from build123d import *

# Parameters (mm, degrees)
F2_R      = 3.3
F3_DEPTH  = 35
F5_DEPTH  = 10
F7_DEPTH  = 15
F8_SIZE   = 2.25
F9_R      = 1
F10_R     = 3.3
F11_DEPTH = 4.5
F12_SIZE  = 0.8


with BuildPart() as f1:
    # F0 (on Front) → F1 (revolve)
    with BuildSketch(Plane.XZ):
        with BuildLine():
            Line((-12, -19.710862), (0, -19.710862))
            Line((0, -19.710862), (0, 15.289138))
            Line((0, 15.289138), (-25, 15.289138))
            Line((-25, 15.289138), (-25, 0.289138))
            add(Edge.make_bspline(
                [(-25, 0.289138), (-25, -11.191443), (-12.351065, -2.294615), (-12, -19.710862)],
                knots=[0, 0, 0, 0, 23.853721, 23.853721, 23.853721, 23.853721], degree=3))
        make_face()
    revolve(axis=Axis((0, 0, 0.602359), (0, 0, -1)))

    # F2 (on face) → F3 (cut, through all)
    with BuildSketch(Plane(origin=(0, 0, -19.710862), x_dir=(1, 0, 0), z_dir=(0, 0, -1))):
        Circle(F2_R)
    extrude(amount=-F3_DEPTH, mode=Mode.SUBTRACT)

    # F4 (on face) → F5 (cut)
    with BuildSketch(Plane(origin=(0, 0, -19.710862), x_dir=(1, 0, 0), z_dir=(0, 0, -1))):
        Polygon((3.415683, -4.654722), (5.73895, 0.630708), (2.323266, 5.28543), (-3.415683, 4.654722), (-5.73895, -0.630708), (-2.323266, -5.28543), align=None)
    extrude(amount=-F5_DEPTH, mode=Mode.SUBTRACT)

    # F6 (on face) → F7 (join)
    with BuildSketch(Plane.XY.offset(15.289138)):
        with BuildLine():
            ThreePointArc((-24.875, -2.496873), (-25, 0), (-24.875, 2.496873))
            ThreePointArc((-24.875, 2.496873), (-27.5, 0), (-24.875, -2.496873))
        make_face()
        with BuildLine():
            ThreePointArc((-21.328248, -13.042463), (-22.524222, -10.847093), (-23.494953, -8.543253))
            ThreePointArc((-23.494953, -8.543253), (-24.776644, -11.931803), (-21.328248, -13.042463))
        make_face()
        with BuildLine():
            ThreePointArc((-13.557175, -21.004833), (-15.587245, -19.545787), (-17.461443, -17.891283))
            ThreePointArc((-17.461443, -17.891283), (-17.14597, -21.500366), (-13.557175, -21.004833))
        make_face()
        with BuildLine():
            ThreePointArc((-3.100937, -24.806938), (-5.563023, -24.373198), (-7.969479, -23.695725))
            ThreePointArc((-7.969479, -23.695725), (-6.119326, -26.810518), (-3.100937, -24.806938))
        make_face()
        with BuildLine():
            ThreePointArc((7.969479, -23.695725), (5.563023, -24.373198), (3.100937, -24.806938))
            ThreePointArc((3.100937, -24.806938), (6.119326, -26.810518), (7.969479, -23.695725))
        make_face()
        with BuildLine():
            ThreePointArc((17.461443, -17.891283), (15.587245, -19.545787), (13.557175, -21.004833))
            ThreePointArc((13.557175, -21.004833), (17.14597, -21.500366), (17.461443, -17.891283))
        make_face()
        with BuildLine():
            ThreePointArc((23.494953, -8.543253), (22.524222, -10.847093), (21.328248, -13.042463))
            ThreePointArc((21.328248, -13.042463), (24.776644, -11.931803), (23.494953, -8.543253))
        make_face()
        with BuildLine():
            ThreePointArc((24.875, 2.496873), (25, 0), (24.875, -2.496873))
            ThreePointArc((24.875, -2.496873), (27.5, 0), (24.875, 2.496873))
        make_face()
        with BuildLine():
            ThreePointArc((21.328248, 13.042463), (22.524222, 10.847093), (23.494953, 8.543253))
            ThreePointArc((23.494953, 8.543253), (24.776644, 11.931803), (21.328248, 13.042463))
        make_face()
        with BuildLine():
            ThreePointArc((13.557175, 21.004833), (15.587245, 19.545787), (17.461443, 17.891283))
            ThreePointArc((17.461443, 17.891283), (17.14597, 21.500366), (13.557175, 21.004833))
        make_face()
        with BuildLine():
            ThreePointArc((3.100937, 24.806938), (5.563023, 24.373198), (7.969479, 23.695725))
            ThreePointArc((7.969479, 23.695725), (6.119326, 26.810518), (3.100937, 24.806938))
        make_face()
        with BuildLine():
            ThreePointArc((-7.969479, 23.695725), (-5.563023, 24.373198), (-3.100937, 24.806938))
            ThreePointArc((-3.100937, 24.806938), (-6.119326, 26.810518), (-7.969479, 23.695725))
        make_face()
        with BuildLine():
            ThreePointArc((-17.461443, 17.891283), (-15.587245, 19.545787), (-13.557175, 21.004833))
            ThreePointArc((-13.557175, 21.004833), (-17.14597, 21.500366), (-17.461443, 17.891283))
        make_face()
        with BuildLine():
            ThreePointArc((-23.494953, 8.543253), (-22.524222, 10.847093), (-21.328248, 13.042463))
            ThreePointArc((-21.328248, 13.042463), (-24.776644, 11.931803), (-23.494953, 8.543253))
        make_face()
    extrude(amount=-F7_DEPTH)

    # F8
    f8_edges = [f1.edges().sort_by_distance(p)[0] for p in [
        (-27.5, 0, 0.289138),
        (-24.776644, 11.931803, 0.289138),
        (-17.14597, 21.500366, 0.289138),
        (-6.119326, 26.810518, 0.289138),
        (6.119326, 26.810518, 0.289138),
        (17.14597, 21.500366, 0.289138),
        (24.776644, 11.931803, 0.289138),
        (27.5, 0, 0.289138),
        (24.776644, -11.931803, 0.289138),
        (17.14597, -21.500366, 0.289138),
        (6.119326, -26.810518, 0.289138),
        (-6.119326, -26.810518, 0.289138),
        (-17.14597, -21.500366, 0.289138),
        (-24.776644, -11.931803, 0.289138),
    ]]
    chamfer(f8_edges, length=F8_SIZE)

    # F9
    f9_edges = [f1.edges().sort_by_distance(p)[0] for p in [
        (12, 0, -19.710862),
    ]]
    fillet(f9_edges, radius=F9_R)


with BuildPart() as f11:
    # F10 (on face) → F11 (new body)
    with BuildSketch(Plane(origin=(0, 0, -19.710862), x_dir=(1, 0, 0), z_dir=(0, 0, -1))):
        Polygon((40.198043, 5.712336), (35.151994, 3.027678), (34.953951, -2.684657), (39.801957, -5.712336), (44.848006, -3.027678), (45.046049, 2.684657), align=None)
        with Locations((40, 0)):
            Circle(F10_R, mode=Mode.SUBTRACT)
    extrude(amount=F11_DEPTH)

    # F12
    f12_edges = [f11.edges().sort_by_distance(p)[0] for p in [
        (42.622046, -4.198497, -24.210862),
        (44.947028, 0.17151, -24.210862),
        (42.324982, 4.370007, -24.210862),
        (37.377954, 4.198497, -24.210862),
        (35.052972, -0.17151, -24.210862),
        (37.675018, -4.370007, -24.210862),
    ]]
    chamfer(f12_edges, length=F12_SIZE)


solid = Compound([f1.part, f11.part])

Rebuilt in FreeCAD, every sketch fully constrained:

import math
import FreeCAD as App
import Part
import Sketcher
from FreeCAD import Vector


def edges_at(feature, points):
    """Names of the edges that pass closest to the given points."""
    edges = feature.Shape.Edges
    near = lambda p: min(range(len(edges)), key=lambda i: edges[i].distToShape(Part.Vertex(*p))[0])
    return sorted({f"Edge{near(p) + 1}" for p in points})


def add_polygon(sketch, points):
    """Adds a closed chain of lines whose ends are joined by coincident constraints."""
    first, n = sketch.GeometryCount, len(points)
    for a, b in zip(points, points[1:] + points[:1]):
        sketch.addGeometry(Part.LineSegment(App.Vector(*a, 0), App.Vector(*b, 0)), False)
    for i in range(n):
        sketch.addConstraint(Sketcher.Constraint("Coincident", first + i, 2, first + (i + 1) % n, 1))

doc = App.newDocument("Part")
params = doc.addObject("Spreadsheet::Sheet", "Params")
for row, (alias, value) in enumerate([
    ("sketch1_height", "35 mm"),
    ("revolution_angle", "360 deg"),
    ("sketch2_diameter", "6.6 mm"),
    ("pocket2_length", "10 mm"),
    ("sketch4_radius", "24.999999 mm"),
    ("sketch4_radius2", "2.5 mm"),
    ("pad1_length", "15 mm"),
    ("chamfer_size", "2.25 mm"),
    ("fillet_radius", "1 mm"),
    ("sketch5_diameter", "6.6 mm"),
    ("pad2_length", "4.5 mm"),
    ("chamfer2_size", "0.8 mm"),
], start=1):
    params.set(f"A{row}", alias)
    params.set(f"B{row}", "=" + value)
    params.setAlias(f"B{row}", alias)

body = doc.addObject("PartDesign::Body", "Body")

# Sketch on XZ plane
sketch1 = doc.addObject("Sketcher::SketchObject", "Sketch")
body.addObject(sketch1)
sketch1.AttachmentSupport = (doc.XZ_Plane, [""])
sketch1.MapMode = "FlatFace"
sketch1.addGeometry([
    Part.LineSegment(Vector(-12, -19.710862, 0), Vector(0, -19.710862, 0)),  # 0
    Part.LineSegment(Vector(0, -19.710862, 0), Vector(0, 15.289138, 0)),  # 1
    Part.LineSegment(Vector(0, 15.289138, 0), Vector(-25, 15.289138, 0)),  # 2
    Part.LineSegment(Vector(-25, 15.289138, 0), Vector(-25, 0.289138, 0)),  # 3
    Part.BSplineCurve([Vector(-25, 0.289138, 0), Vector(-25, -11.191443, 0), Vector(-12.351065, -2.294615, 0), Vector(-12, -19.710862, 0)], [4, 4], [0, 23.853721], False, 3, [1, 1, 1, 1], False),  # 4
], False)
sketch1.addConstraint([
    Sketcher.Constraint("Block", 4),
    Sketcher.Constraint("Coincident", 0, 2, 1, 1),
    Sketcher.Constraint("Coincident", 1, 2, 2, 1),
    Sketcher.Constraint("Coincident", 2, 2, 3, 1),
    Sketcher.Constraint("Coincident", 3, 2, 4, 1),
    Sketcher.Constraint("Coincident", 4, 2, 0, 1),
    Sketcher.Constraint("Horizontal", 0),
    Sketcher.Constraint("Vertical", 1),
    Sketcher.Constraint("Horizontal", 2),
    Sketcher.Constraint("Vertical", 3),
    Sketcher.Constraint("PointOnObject", 0, 2, -2),
    Sketcher.Constraint("DistanceY", 1, 1, 1, 2, 35.0),
])
sketch1.setExpression("Constraints[11]", "Params.sketch1_height")
revolution = doc.addObject("PartDesign::Revolution", "Revolution")
body.addObject(revolution)
revolution.Profile = sketch1
revolution.ReferenceAxis = (sketch1, ["V_Axis"])
revolution.setExpression("Angle", "Params.revolution_angle")

# Sketch on XY plane
sketch2 = doc.addObject("Sketcher::SketchObject", "Sketch001")
body.addObject(sketch2)
sketch2.AttachmentSupport = (doc.XY_Plane, [""])
sketch2.MapMode = "FlatFace"
sketch2.AttachmentOffset = App.Placement(Vector(0, 0, -19.710862), App.Rotation())
sketch2.addGeometry(Part.Circle(Vector(0, 0, 0), Vector(0, 0, 1), 3.3), False)
sketch2.addConstraint([
    Sketcher.Constraint("Coincident", 0, 3, -1, 1),
    Sketcher.Constraint("Diameter", 0, 6.6),
])
sketch2.setExpression("Constraints[1]", "Params.sketch2_diameter")
pocket1 = doc.addObject("PartDesign::Pocket", "Pocket")
body.addObject(pocket1)
pocket1.Profile = sketch2
pocket1.Type = "ThroughAll"
pocket1.Reversed = True

# Sketch on XY plane
sketch3 = doc.addObject("Sketcher::SketchObject", "Sketch002")
body.addObject(sketch3)
sketch3.AttachmentSupport = (doc.XY_Plane, [""])
sketch3.MapMode = "FlatFace"
sketch3.AttachmentOffset = App.Placement(Vector(0, 0, -19.710862), App.Rotation())
add_polygon(sketch3, [(3, 5), (6, -1), (2, -5), (-3, -5), (-6, 1), (-2, 5)])  # lines 0-5
sketch3.addConstraint([
    Sketcher.Constraint("Symmetric", 0, 2, 3, 2, -1, 1),
    Sketcher.Constraint("Symmetric", 1, 2, 4, 2, -1, 1),
    Sketcher.Constraint("Symmetric", 2, 2, 5, 2, -1, 1),
    Sketcher.Constraint("Equal", 0, 1),
    Sketcher.Constraint("Equal", 1, 2),
    Sketcher.Constraint("DistanceX", 3, 2, 0, 2, 11.4779),
    Sketcher.Constraint("DistanceY", 0, 2, -1, 1, 0.630708),
    Sketcher.Constraint("DistanceY", 1, 2, -1, 1, 5.28543),
    Sketcher.Constraint("DistanceY", 2, 2, -1, 1, 4.654722),
])
pocket2 = doc.addObject("PartDesign::Pocket", "Pocket001")
body.addObject(pocket2)
pocket2.Profile = sketch3
pocket2.setExpression("Length", "Params.pocket2_length")
pocket2.Reversed = True

# Sketch on XY plane
sketch4 = doc.addObject("Sketcher::SketchObject", "Sketch003")
body.addObject(sketch4)
sketch4.AttachmentSupport = (doc.XY_Plane, [""])
sketch4.MapMode = "FlatFace"
sketch4.AttachmentOffset = App.Placement(Vector(0, 0, 15.289138), App.Rotation())
sketch4.addGeometry([
    Part.ArcOfCircle(Part.Circle(Vector(-0.000001, 0, 0), Vector(0, 0, 1), 24.999999), math.radians(174.268032), math.radians(185.731968)),  # 0
    Part.ArcOfCircle(Part.Circle(Vector(-25, 0, 0), Vector(0, 0, 1), 2.5), math.radians(87.134015), math.radians(272.865985)),  # 1
    Part.ArcOfCircle(Part.Circle(Vector(-0.000025, -0.000014, 0), Vector(0, 0, 1), 24.999971), math.radians(-160.017693), math.radians(-148.553743)),  # 2
    Part.ArcOfCircle(Part.Circle(Vector(-22.524222, -10.847094, 0), Vector(0, 0, 1), 2.5), math.radians(112.848293), math.radians(298.580271)),  # 3
    Part.ArcOfCircle(Part.Circle(Vector(0.000013, 0.000016, 0), Vector(0, 0, 1), 25.00002), math.radians(-134.303394), math.radians(-122.839466)),  # 4
    Part.ArcOfCircle(Part.Circle(Vector(-15.587245, -19.545787, 0), Vector(0, 0, 1), 2.5), math.radians(138.562579), math.radians(324.294561)),  # 5
    Part.ArcOfCircle(Part.Circle(Vector(-0.000021, -0.000096, 0), Vector(0, 0, 1), 24.999902), math.radians(-108.589134), math.radians(-97.125153)),  # 6
    Part.ArcOfCircle(Part.Circle(Vector(-5.563023, -24.373198, 0), Vector(0, 0, 1), 2.5), math.radians(164.276849), math.radians(350.008864)),  # 7
    Part.ArcOfCircle(Part.Circle(Vector(0.000021, -0.000096, 0), Vector(0, 0, 1), 24.999902), math.radians(-82.874847), math.radians(-71.410866)),  # 8
    Part.ArcOfCircle(Part.Circle(Vector(5.563023, -24.373198, 0), Vector(0, 0, 1), 2.5), math.radians(-170.008864), math.radians(15.723151)),  # 9
    Part.ArcOfCircle(Part.Circle(Vector(-0.000013, 0.000016, 0), Vector(0, 0, 1), 25.00002), math.radians(-57.160534), math.radians(-45.696606)),  # 10
    Part.ArcOfCircle(Part.Circle(Vector(15.587245, -19.545787, 0), Vector(0, 0, 1), 2.5), math.radians(-144.294561), math.radians(41.437421)),  # 11
    Part.ArcOfCircle(Part.Circle(Vector(0.000025, -0.000014, 0), Vector(0, 0, 1), 24.999971), math.radians(-31.446257), math.radians(-19.982307)),  # 12
    Part.ArcOfCircle(Part.Circle(Vector(22.524222, -10.847094, 0), Vector(0, 0, 1), 2.5), math.radians(-118.580271), math.radians(67.151707)),  # 13
    Part.ArcOfCircle(Part.Circle(Vector(0.000001, 0, 0), Vector(0, 0, 1), 24.999999), math.radians(-5.731968), math.radians(5.731968)),  # 14
    Part.ArcOfCircle(Part.Circle(Vector(25, 0, 0), Vector(0, 0, 1), 2.5), math.radians(-92.865985), math.radians(92.865985)),  # 15
    Part.ArcOfCircle(Part.Circle(Vector(0.000025, 0.000014, 0), Vector(0, 0, 1), 24.999971), math.radians(19.982307), math.radians(31.446257)),  # 16
    Part.ArcOfCircle(Part.Circle(Vector(22.524222, 10.847094, 0), Vector(0, 0, 1), 2.5), math.radians(-67.151707), math.radians(118.580271)),  # 17
    Part.ArcOfCircle(Part.Circle(Vector(-0.000013, -0.000016, 0), Vector(0, 0, 1), 25.00002), math.radians(45.696606), math.radians(57.160534)),  # 18
    Part.ArcOfCircle(Part.Circle(Vector(15.587245, 19.545787, 0), Vector(0, 0, 1), 2.5), math.radians(-41.437421), math.radians(144.294561)),  # 19
    Part.ArcOfCircle(Part.Circle(Vector(0.000021, 0.000096, 0), Vector(0, 0, 1), 24.999902), math.radians(71.410866), math.radians(82.874847)),  # 20
    Part.ArcOfCircle(Part.Circle(Vector(5.563023, 24.373198, 0), Vector(0, 0, 1), 2.5), math.radians(-15.723151), math.radians(170.008864)),  # 21
    Part.ArcOfCircle(Part.Circle(Vector(-0.000021, 0.000096, 0), Vector(0, 0, 1), 24.999902), math.radians(97.125153), math.radians(108.589134)),  # 22
    Part.ArcOfCircle(Part.Circle(Vector(-5.563023, 24.373198, 0), Vector(0, 0, 1), 2.5), math.radians(9.991136), math.radians(195.723151)),  # 23
    Part.ArcOfCircle(Part.Circle(Vector(0.000013, -0.000016, 0), Vector(0, 0, 1), 25.00002), math.radians(122.839466), math.radians(134.303394)),  # 24
    Part.ArcOfCircle(Part.Circle(Vector(-15.587245, 19.545787, 0), Vector(0, 0, 1), 2.5), math.radians(35.705439), math.radians(221.437421)),  # 25
    Part.ArcOfCircle(Part.Circle(Vector(-0.000025, 0.000014, 0), Vector(0, 0, 1), 24.999971), math.radians(148.553743), math.radians(160.017693)),  # 26
    Part.ArcOfCircle(Part.Circle(Vector(-22.524222, 10.847094, 0), Vector(0, 0, 1), 2.5), math.radians(61.419729), math.radians(247.151707)),  # 27
], False)
sketch4.addConstraint([
    Sketcher.Constraint("Coincident", 0, 1, 1, 1),
    Sketcher.Constraint("Coincident", 1, 2, 0, 2),
    Sketcher.Constraint("Coincident", 2, 1, 3, 1),
    Sketcher.Constraint("Coincident", 3, 2, 2, 2),
    Sketcher.Constraint("Coincident", 4, 1, 5, 1),
    Sketcher.Constraint("Coincident", 5, 2, 4, 2),
    Sketcher.Constraint("Coincident", 6, 1, 7, 1),
    Sketcher.Constraint("Coincident", 7, 2, 6, 2),
    Sketcher.Constraint("Coincident", 8, 1, 9, 1),
    Sketcher.Constraint("Coincident", 9, 2, 8, 2),
    Sketcher.Constraint("Coincident", 10, 1, 11, 1),
    Sketcher.Constraint("Coincident", 11, 2, 10, 2),
    Sketcher.Constraint("Coincident", 12, 1, 13, 1),
    Sketcher.Constraint("Coincident", 13, 2, 12, 2),
    Sketcher.Constraint("Coincident", 14, 1, 15, 1),
    Sketcher.Constraint("Coincident", 15, 2, 14, 2),
    Sketcher.Constraint("Coincident", 16, 1, 17, 1),
    Sketcher.Constraint("Coincident", 17, 2, 16, 2),
    Sketcher.Constraint("Coincident", 18, 1, 19, 1),
    Sketcher.Constraint("Coincident", 19, 2, 18, 2),
    Sketcher.Constraint("Coincident", 20, 1, 21, 1),
    Sketcher.Constraint("Coincident", 21, 2, 20, 2),
    Sketcher.Constraint("Coincident", 22, 1, 23, 1),
    Sketcher.Constraint("Coincident", 23, 2, 22, 2),
    Sketcher.Constraint("Coincident", 24, 1, 25, 1),
    Sketcher.Constraint("Coincident", 25, 2, 24, 2),
    Sketcher.Constraint("Coincident", 26, 1, 27, 1),
    Sketcher.Constraint("Coincident", 27, 2, 26, 2),
    Sketcher.Constraint("Coincident", 0, 3, -1, 1),
    Sketcher.Constraint("Coincident", 14, 3, -1, 1),
    Sketcher.Constraint("Equal", 1, 3),
    Sketcher.Constraint("Equal", 3, 5),
    Sketcher.Constraint("Equal", 5, 7),
    Sketcher.Constraint("Equal", 6, 8),
    Sketcher.Constraint("Equal", 7, 9),
    Sketcher.Constraint("Equal", 4, 10),
    Sketcher.Constraint("Equal", 9, 11),
    Sketcher.Constraint("Equal", 2, 12),
    Sketcher.Constraint("Equal", 11, 13),
    Sketcher.Constraint("Equal", 0, 14),
    Sketcher.Constraint("Equal", 13, 15),
    Sketcher.Constraint("Equal", 12, 16),
    Sketcher.Constraint("Equal", 15, 17),
    Sketcher.Constraint("Equal", 10, 18),
    Sketcher.Constraint("Equal", 17, 19),
    Sketcher.Constraint("Equal", 8, 20),
    Sketcher.Constraint("Equal", 19, 21),
    Sketcher.Constraint("Equal", 20, 22),
    Sketcher.Constraint("Equal", 21, 23),
    Sketcher.Constraint("Equal", 18, 24),
    Sketcher.Constraint("Equal", 23, 25),
    Sketcher.Constraint("Equal", 16, 26),
    Sketcher.Constraint("Equal", 25, 27),
    Sketcher.Constraint("Symmetric", 1, 3, 15, 3, -1, 1),
    Sketcher.Constraint("Symmetric", 2, 3, 16, 3, -1, 1),
    Sketcher.Constraint("Symmetric", 3, 3, 17, 3, -1, 1),
    Sketcher.Constraint("Symmetric", 4, 3, 18, 3, -1, 1),
    Sketcher.Constraint("Symmetric", 5, 3, 19, 3, -1, 1),
    Sketcher.Constraint("Symmetric", 6, 3, 20, 3, -1, 1),
    Sketcher.Constraint("Symmetric", 7, 3, 21, 3, -1, 1),
    Sketcher.Constraint("Symmetric", 8, 3, 22, 3, -1, 1),
    Sketcher.Constraint("Symmetric", 9, 3, 23, 3, -1, 1),
    Sketcher.Constraint("Symmetric", 10, 3, 24, 3, -1, 1),
    Sketcher.Constraint("Symmetric", 11, 3, 25, 3, -1, 1),
    Sketcher.Constraint("Symmetric", 12, 3, 26, 3, -1, 1),
    Sketcher.Constraint("Symmetric", 13, 3, 27, 3, -1, 1),
    Sketcher.Constraint("Symmetric", 6, 3, 8, 3, -2),
    Sketcher.Constraint("Symmetric", 7, 3, 9, 3, -2),
    Sketcher.Constraint("Symmetric", 4, 3, 10, 3, -2),
    Sketcher.Constraint("Symmetric", 5, 3, 11, 3, -2),
    Sketcher.Constraint("Symmetric", 2, 3, 12, 3, -2),
    Sketcher.Constraint("Symmetric", 3, 3, 13, 3, -2),
    Sketcher.Constraint("PointOnObject", 1, 3, -1),
    Sketcher.Constraint("Horizontal", 10, 3, 16, 3),
    Sketcher.Constraint("Radius", 0, 24.999999),
    Sketcher.Constraint("Radius", 1, 2.5),
    Sketcher.Constraint("DistanceX", 1, 3, -1, 1, 25.0),
    Sketcher.Constraint("Radius", 6, 24.999902),
    Sketcher.Constraint("Radius", 2, 24.999971),
    Sketcher.Constraint("Radius", 4, 25.00002),
    Sketcher.Constraint("DistanceX", 7, 3, 6, 3, 5.563002),
    Sketcher.Constraint("DistanceX", 7, 3, 2, 3, 5.562998),
    Sketcher.Constraint("DistanceY", 7, 3, -1, 1, 24.373198),
    Sketcher.Constraint("DistanceX", 3, 3, 6, 3, 22.5242),
    Sketcher.Constraint("DistanceY", 12, 3, 19, 3, 19.545801),
    Sketcher.Constraint("DistanceX", 3, 3, -1, 1, 22.524222),
    Sketcher.Constraint("DistanceX", 6, 1, -1, 1, 7.969479),
    Sketcher.Constraint("DistanceX", -1, 1, 12, 1, 21.328248),
    Sketcher.Constraint("DistanceY", 3, 3, 4, 3, 10.847109),
    Sketcher.Constraint("DistanceX", 5, 3, 2, 3, 15.58722),
    Sketcher.Constraint("DistanceX", 5, 3, 4, 3, 15.587258),
])
sketch4.setExpression("Constraints[74]", "Params.sketch4_radius")
sketch4.setExpression("Constraints[75]", "Params.sketch4_radius2")
pad1 = doc.addObject("PartDesign::Pad", "Pad")
body.addObject(pad1)
pad1.Profile = sketch4
pad1.setExpression("Length", "Params.pad1_length")
pad1.Reversed = True
doc.recompute()

chamfer = doc.addObject("PartDesign::Chamfer", "Chamfer")
body.addObject(chamfer)
chamfer.Base = (pad1, edges_at(pad1, [
    (-27.5, 0, 0.289),
    (-24.777, 11.932, 0.289),
    (-17.146, 21.5, 0.289),
    (-6.119, 26.811, 0.289),
    (6.119, 26.811, 0.289),
    (17.146, 21.5, 0.289),
    (24.777, 11.932, 0.289),
    (27.5, 0, 0.289),
    (24.777, -11.932, 0.289),
    (17.146, -21.5, 0.289),
    (6.119, -26.811, 0.289),
    (-6.119, -26.811, 0.289),
    (-17.146, -21.5, 0.289),
    (-24.777, -11.932, 0.289),
]))
chamfer.setExpression("Size", "Params.chamfer_size")
doc.recompute()

fillet = doc.addObject("PartDesign::Fillet", "Fillet")
body.addObject(fillet)
fillet.Base = (chamfer, edges_at(chamfer, [(12, 0, -19.711)]))
fillet.setExpression("Radius", "Params.fillet_radius")
body2 = doc.addObject("PartDesign::Body", "Body001")

# Sketch on XY plane
sketch5 = doc.addObject("Sketcher::SketchObject", "Sketch004")
body2.addObject(sketch5)
sketch5.AttachmentSupport = (doc.getObject("XY_Plane001"), [""])
sketch5.MapMode = "FlatFace"
sketch5.AttachmentOffset = App.Placement(Vector(0, 0, -19.710862), App.Rotation())
add_polygon(sketch5, [(40.2, -5.7), (35.2, -3), (35, 2.7), (39.8, 5.7), (44.8, 3), (45, -2.7)])  # lines 0-5
sketch5.addGeometry(Part.Circle(Vector(40, 0, 0), Vector(0, 0, 1), 3.3), False)  # 6
sketch5.addConstraint([
    Sketcher.Constraint("PointOnObject", 6, 3, -1),
    Sketcher.Constraint("Parallel", 0, 3),
    Sketcher.Constraint("Parallel", 1, 4),
    Sketcher.Constraint("Parallel", 2, 5),
    Sketcher.Constraint("Equal", 0, 1),
    Sketcher.Constraint("Equal", 1, 2),
    Sketcher.Constraint("Equal", 2, 3),
    Sketcher.Constraint("Diameter", 6, 6.6),
    Sketcher.Constraint("DistanceX", -1, 1, 6, 3, 40.0),
    Sketcher.Constraint("DistanceX", -1, 1, 1, 2, 34.953951),
    Sketcher.Constraint("DistanceX", -1, 1, 4, 2, 45.046049),
    Sketcher.Constraint("DistanceY", 1, 2, 2, 2, 3.027679),
    Sketcher.Constraint("DistanceX", 2, 2, 3, 2, 5.046049),
    Sketcher.Constraint("DistanceY", 1, 2, 3, 2, 0.343021),
    Sketcher.Constraint("DistanceY", 0, 2, -1, 1, 3.027678),
])
sketch5.setExpression("Constraints[13]", "Params.sketch5_diameter")
pad2 = doc.addObject("PartDesign::Pad", "Pad001")
body2.addObject(pad2)
pad2.Profile = sketch5
pad2.setExpression("Length", "Params.pad2_length")
pad2.Reversed = True
doc.recompute()

chamfer2 = doc.addObject("PartDesign::Chamfer", "Chamfer001")
body2.addObject(chamfer2)
chamfer2.Base = (pad2, edges_at(pad2, [
    (42.622, -4.198, -24.211),
    (44.947, 0.172, -24.211),
    (42.325, 4.37, -24.211),
    (37.378, 4.198, -24.211),
    (35.053, -0.172, -24.211),
    (37.675, -4.37, -24.211),
]))
chamfer2.setExpression("Size", "Params.chamfer2_size")

doc.recompute()
